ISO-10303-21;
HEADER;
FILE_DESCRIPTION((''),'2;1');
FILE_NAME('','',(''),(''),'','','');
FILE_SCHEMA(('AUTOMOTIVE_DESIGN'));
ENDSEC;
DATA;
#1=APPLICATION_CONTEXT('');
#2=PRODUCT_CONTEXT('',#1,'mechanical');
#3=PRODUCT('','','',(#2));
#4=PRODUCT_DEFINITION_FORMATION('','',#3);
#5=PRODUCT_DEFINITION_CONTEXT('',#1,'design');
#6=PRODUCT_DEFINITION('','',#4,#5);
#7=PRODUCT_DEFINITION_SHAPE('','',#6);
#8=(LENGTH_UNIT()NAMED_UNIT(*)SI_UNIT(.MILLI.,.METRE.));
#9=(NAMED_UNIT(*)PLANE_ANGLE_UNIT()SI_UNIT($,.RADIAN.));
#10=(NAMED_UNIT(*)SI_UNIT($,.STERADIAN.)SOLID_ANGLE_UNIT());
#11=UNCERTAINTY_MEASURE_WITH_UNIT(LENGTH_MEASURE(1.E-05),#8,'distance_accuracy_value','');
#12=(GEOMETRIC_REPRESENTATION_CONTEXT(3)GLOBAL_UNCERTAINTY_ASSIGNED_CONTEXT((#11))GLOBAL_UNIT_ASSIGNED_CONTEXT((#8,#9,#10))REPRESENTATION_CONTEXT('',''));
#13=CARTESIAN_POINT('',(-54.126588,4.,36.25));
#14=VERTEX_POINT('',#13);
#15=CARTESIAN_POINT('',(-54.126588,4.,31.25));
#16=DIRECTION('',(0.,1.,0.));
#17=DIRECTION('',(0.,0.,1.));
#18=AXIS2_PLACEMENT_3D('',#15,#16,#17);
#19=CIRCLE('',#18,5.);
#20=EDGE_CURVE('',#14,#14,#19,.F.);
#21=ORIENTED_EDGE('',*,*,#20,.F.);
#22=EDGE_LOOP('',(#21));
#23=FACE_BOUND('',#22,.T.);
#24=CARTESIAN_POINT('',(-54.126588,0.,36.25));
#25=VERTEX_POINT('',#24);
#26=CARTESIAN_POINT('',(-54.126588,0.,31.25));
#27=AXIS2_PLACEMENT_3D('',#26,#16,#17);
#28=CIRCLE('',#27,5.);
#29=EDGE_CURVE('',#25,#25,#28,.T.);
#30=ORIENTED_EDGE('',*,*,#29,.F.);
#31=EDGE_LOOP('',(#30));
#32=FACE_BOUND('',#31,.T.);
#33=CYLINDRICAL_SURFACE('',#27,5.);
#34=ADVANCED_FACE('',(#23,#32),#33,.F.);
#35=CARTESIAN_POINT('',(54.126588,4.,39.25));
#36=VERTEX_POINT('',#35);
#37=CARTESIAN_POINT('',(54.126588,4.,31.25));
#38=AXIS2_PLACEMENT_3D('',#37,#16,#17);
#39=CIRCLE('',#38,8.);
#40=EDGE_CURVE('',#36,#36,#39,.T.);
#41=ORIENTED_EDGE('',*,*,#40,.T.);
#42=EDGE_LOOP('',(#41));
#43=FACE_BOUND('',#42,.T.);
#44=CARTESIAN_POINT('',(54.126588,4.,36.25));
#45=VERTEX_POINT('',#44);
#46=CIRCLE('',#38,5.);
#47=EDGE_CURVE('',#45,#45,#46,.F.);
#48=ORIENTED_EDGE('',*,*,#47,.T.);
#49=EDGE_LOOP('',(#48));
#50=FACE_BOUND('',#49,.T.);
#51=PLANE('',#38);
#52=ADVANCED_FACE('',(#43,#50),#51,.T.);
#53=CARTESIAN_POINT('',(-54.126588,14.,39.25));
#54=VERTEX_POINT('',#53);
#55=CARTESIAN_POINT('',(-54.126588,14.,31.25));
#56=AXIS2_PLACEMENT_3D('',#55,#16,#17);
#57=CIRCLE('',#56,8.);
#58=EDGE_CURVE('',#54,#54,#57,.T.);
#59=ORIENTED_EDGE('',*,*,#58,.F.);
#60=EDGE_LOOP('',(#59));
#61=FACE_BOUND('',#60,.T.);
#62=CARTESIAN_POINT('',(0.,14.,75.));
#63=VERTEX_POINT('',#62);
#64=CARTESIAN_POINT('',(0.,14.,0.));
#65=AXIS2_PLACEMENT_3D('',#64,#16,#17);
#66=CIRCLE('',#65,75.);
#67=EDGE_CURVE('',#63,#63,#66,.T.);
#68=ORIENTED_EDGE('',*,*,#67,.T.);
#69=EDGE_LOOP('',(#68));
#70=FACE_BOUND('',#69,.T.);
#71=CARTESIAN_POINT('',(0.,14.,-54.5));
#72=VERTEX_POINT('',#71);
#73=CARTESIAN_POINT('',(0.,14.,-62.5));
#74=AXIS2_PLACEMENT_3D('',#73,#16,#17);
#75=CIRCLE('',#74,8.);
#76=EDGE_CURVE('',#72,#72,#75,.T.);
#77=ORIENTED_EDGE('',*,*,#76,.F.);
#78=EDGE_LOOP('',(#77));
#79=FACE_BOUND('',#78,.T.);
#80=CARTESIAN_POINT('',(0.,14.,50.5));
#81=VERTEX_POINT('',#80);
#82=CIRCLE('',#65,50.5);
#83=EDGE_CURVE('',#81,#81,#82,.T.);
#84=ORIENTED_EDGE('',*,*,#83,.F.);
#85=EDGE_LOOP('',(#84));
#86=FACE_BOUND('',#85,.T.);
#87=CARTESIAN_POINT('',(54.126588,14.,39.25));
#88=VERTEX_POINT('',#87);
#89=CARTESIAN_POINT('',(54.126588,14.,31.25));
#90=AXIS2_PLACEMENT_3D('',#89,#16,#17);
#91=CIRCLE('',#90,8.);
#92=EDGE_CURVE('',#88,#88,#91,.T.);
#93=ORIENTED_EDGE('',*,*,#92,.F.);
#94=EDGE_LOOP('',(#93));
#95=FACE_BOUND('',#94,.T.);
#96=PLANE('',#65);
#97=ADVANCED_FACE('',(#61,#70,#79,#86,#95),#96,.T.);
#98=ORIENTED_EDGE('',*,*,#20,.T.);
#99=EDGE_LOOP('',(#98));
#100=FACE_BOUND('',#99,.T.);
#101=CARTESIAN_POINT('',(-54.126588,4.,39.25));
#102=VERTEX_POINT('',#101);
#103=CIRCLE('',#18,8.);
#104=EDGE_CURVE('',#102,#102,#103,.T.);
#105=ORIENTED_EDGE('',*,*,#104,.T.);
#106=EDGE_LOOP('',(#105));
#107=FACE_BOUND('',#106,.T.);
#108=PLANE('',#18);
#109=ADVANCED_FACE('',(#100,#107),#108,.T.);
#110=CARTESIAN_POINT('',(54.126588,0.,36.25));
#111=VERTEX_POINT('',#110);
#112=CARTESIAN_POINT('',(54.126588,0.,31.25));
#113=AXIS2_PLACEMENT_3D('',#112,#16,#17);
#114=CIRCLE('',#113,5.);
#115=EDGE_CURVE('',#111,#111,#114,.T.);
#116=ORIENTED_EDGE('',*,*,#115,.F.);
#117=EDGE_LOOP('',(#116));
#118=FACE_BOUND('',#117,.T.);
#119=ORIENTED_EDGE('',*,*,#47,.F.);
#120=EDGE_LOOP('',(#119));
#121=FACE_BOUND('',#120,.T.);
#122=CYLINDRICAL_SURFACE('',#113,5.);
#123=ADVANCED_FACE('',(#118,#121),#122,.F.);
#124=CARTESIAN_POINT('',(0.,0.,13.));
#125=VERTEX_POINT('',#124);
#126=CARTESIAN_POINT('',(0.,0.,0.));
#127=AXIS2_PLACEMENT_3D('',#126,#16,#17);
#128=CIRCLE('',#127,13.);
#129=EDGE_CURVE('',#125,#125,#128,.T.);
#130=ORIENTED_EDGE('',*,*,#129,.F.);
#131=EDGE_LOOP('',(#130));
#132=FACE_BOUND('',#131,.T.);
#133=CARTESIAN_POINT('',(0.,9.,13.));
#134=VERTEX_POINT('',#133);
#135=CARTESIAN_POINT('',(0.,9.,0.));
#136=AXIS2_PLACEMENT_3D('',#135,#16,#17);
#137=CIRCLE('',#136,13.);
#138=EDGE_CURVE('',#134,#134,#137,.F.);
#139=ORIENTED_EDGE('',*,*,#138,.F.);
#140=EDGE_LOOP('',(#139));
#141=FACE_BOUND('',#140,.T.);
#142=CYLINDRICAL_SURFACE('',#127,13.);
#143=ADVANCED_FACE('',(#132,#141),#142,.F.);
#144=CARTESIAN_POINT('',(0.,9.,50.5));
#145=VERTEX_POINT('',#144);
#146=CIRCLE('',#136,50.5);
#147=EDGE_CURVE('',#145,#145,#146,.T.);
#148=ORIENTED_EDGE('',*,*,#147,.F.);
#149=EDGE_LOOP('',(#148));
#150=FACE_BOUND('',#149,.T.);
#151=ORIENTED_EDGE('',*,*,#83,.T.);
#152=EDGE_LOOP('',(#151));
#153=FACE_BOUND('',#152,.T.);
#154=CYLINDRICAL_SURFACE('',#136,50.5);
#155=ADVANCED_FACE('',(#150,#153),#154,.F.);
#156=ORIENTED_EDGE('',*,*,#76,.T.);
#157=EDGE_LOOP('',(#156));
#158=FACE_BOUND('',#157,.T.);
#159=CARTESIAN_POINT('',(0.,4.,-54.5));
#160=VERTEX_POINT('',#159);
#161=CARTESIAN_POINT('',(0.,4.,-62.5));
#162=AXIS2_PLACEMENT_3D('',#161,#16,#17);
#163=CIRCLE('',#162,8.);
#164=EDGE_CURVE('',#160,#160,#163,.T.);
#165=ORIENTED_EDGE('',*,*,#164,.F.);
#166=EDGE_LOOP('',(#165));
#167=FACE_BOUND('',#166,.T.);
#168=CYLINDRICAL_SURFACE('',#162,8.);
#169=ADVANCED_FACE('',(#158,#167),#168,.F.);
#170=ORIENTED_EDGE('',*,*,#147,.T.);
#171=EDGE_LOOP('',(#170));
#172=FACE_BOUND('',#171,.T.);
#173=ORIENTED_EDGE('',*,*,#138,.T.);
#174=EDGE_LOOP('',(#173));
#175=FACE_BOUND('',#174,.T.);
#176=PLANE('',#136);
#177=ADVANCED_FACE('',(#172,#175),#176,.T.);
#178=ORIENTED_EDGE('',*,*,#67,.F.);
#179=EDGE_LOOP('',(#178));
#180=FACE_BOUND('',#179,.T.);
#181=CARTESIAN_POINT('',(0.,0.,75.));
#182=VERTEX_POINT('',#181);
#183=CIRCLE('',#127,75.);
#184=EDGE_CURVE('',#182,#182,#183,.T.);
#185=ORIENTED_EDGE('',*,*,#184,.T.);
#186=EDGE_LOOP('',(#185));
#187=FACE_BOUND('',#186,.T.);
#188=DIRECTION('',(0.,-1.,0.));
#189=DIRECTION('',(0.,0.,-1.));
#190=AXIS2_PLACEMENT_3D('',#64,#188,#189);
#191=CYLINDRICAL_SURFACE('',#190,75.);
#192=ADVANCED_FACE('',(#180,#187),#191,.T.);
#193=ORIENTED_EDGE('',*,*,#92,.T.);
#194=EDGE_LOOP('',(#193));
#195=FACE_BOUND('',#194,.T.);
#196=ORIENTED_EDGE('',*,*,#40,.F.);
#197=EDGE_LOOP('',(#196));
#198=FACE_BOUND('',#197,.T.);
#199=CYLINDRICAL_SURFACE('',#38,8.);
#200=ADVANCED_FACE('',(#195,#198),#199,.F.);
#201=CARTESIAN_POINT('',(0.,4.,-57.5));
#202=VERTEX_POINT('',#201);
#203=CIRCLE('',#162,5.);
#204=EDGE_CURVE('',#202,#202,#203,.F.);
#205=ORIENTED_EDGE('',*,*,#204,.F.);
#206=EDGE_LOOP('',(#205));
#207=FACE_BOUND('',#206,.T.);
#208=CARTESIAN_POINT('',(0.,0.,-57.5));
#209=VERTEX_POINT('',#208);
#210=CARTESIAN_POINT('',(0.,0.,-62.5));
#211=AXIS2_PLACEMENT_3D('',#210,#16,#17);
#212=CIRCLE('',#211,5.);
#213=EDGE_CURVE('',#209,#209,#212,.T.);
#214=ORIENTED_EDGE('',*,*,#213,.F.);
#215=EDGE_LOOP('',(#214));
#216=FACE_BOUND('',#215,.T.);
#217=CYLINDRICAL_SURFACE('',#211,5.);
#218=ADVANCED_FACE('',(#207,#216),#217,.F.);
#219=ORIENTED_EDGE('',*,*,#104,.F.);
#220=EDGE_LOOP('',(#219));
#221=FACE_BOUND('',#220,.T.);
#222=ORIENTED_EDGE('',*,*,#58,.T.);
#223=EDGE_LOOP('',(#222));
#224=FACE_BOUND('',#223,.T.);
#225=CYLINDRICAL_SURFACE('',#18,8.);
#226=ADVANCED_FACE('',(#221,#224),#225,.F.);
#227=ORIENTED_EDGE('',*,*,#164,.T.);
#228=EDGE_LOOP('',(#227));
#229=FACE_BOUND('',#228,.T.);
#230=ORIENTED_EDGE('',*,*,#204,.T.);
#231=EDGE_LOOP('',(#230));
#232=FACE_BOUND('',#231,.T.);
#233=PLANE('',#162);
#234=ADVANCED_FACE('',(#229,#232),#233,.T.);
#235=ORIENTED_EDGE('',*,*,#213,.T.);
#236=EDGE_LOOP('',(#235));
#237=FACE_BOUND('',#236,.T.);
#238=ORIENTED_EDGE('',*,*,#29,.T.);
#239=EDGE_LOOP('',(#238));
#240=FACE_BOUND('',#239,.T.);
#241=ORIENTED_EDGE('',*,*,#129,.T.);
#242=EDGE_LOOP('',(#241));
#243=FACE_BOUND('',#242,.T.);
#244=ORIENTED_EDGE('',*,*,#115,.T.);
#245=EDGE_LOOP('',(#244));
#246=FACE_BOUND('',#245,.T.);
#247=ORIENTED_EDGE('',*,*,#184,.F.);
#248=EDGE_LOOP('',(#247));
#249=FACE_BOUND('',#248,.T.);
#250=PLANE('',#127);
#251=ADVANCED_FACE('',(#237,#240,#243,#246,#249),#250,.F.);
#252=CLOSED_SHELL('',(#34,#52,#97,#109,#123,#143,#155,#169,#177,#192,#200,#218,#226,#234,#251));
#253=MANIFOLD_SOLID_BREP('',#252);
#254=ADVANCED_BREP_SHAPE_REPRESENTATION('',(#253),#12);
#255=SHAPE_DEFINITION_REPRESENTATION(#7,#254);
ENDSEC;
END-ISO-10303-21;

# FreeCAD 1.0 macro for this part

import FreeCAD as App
import Part
import Sketcher

doc = App.newDocument("Part")
body = doc.addObject("PartDesign::Body", "Body")

# Sketch on XZ plane
sketch1 = body.newObject("Sketcher::SketchObject", "Sketch")
sketch1.AttachmentSupport = (doc.getObject("XZ_Plane"), [""])
sketch1.MapMode = "FlatFace"
sketch1.addGeometry(Part.Circle(App.Vector(0, 0, 0), App.Vector(0, 0, 1), 75), False)
sketch1.addConstraint([
    Sketcher.Constraint("Coincident", 0, 3, -1, 1),
    Sketcher.Constraint("Diameter", 0, 150.0),
])
pad1 = body.newObject("PartDesign::Pad", "Pad")
pad1.Profile = sketch1
pad1.Length = 14
pad1.Reversed = True

# Sketch on XZ plane
sketch2 = body.newObject("Sketcher::SketchObject", "Sketch001")
sketch2.AttachmentSupport = (doc.getObject("XZ_Plane"), [""])
sketch2.MapMode = "FlatFace"
sketch2.AttachmentOffset = App.Placement(App.Vector(0, 0, -14), App.Rotation())
sketch2.addGeometry([
    Part.Circle(App.Vector(0, -62, 0), App.Vector(0, 0, 1), 5),
    Part.Circle(App.Vector(-54, 31, 0), App.Vector(0, 0, 1), 5),
    Part.Circle(App.Vector(54, 31, 0), App.Vector(0, 0, 1), 5),
], False)
sketch2.addConstraint([
    Sketcher.Constraint("Equal", 0, 1),
    Sketcher.Constraint("Equal", 1, 2),
    Sketcher.Constraint("Symmetric", 1, 3, 2, 3, -2),
    Sketcher.Constraint("PointOnObject", 0, 3, -2),
    Sketcher.Constraint("Diameter", 0, 10.0),
    Sketcher.Constraint("DistanceY", 0, 3, -1, 1, 62.5),
    Sketcher.Constraint("DistanceY", -1, 1, 1, 3, 31.25),
    Sketcher.Constraint("DistanceX", 1, 3, -1, 1, 54.126588),
])
pocket1 = body.newObject("PartDesign::Pocket", "Pocket")
pocket1.Profile = sketch2
pocket1.Type = "ThroughAll"
pocket1.Reversed = True

# Sketch on XZ plane
sketch3 = body.newObject("Sketcher::SketchObject", "Sketch002")
sketch3.AttachmentSupport = (doc.getObject("XZ_Plane"), [""])
sketch3.MapMode = "FlatFace"
sketch3.AttachmentOffset = App.Placement(App.Vector(0, 0, -14), App.Rotation())
sketch3.addGeometry(Part.Circle(App.Vector(0, 0, 0), App.Vector(0, 0, 1), 13), False)
sketch3.addConstraint([
    Sketcher.Constraint("Coincident", 0, 3, -1, 1),
    Sketcher.Constraint("Diameter", 0, 26.0),
])
pocket2 = body.newObject("PartDesign::Pocket", "Pocket001")
pocket2.Profile = sketch3
pocket2.Type = "ThroughAll"
pocket2.Reversed = True

# Sketch on XZ plane
sketch4 = body.newObject("Sketcher::SketchObject", "Sketch003")
sketch4.AttachmentSupport = (doc.getObject("XZ_Plane"), [""])
sketch4.MapMode = "FlatFace"
sketch4.AttachmentOffset = App.Placement(App.Vector(0, 0, -14), App.Rotation())
sketch4.addGeometry(Part.Circle(App.Vector(0, 0, 0), App.Vector(0, 0, 1), 50), False)
sketch4.addConstraint([
    Sketcher.Constraint("Coincident", 0, 3, -1, 1),
    Sketcher.Constraint("Diameter", 0, 101.0),
])
pocket3 = body.newObject("PartDesign::Pocket", "Pocket002")
pocket3.Profile = sketch4
pocket3.Length = 5
pocket3.Reversed = True

# Sketch on XZ plane
sketch5 = body.newObject("Sketcher::SketchObject", "Sketch004")
sketch5.AttachmentSupport = (doc.getObject("XZ_Plane"), [""])
sketch5.MapMode = "FlatFace"
sketch5.AttachmentOffset = App.Placement(App.Vector(0, 0, -14), App.Rotation())
sketch5.addGeometry([
    Part.Circle(App.Vector(-54, 31, 0), App.Vector(0, 0, 1), 8),
    Part.Circle(App.Vector(0, -62, 0), App.Vector(0, 0, 1), 8),
    Part.Circle(App.Vector(54, 31, 0), App.Vector(0, 0, 1), 8),
], False)
sketch5.addConstraint([
    Sketcher.Constraint("Equal", 0, 1),
    Sketcher.Constraint("Equal", 1, 2),
    Sketcher.Constraint("Symmetric", 0, 3, 2, 3, -2),
    Sketcher.Constraint("PointOnObject", 1, 3, -2),
    Sketcher.Constraint("Diameter", 0, 16.0),
    Sketcher.Constraint("DistanceY", 1, 3, -1, 1, 62.5),
    Sketcher.Constraint("DistanceY", -1, 1, 0, 3, 31.25),
    Sketcher.Constraint("DistanceX", 0, 3, -1, 1, 54.126588),
])
pocket4 = body.newObject("PartDesign::Pocket", "Pocket003")
pocket4.Profile = sketch5
pocket4.Length = 10
pocket4.Reversed = True

doc.recompute()
